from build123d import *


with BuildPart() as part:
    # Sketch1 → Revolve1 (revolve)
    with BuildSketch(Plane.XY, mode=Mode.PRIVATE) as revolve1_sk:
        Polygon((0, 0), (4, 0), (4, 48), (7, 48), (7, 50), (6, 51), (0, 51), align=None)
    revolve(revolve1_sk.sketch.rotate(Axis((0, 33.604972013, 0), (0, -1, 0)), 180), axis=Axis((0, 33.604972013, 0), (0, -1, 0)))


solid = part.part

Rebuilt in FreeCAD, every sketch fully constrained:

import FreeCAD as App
import Part
import Sketcher

doc = App.newDocument("Part")
body = doc.addObject("PartDesign::Body", "Body")

sketch1 = body.newObject("Sketcher::SketchObject", "Sketch")
sketch1.AttachmentSupport = (doc.getObject("XY_Plane"), [""])
sketch1.MapMode = "FlatFace"
sketch1.addGeometry([
    Part.LineSegment(App.Vector(0, 0, 0), App.Vector(4, 0, 0)),
    Part.LineSegment(App.Vector(4, 0, 0), App.Vector(4, 48, 0)),
    Part.LineSegment(App.Vector(4, 48, 0), App.Vector(7, 48, 0)),
    Part.LineSegment(App.Vector(7, 48, 0), App.Vector(7, 50, 0)),
    Part.LineSegment(App.Vector(7, 50, 0), App.Vector(6, 51, 0)),
    Part.LineSegment(App.Vector(6, 51, 0), App.Vector(0, 51, 0)),
    Part.LineSegment(App.Vector(0, 51, 0), App.Vector(0, 0, 0)),
], False)
sketch1.addConstraint([
    Sketcher.Constraint("Coincident", 0, 2, 1, 1),
    Sketcher.Constraint("Coincident", 1, 2, 2, 1),
    Sketcher.Constraint("Coincident", 2, 2, 3, 1),
    Sketcher.Constraint("Coincident", 3, 2, 4, 1),
    Sketcher.Constraint("Coincident", 4, 2, 5, 1),
    Sketcher.Constraint("Coincident", 5, 2, 6, 1),
    Sketcher.Constraint("Coincident", 6, 2, 0, 1),
    Sketcher.Constraint("Horizontal", 0),
    Sketcher.Constraint("Vertical", 1),
    Sketcher.Constraint("Horizontal", 2),
    Sketcher.Constraint("Vertical", 3),
    Sketcher.Constraint("Horizontal", 5),
    Sketcher.Constraint("Vertical", 6),
    Sketcher.Constraint("Coincident", 6, 2, -1, 1),
    Sketcher.Constraint("DistanceX", 0, 1, 0, 2, 4.0),
    Sketcher.Constraint("DistanceX", 2, 1, 2, 2, 3.0),
    Sketcher.Constraint("DistanceX", 5, 2, 5, 1, 6.0),
    Sketcher.Constraint("DistanceY", 1, 1, 1, 2, 48.0),
    Sketcher.Constraint("DistanceY", 3, 1, 3, 2, 2.0),
    Sketcher.Constraint("DistanceY", 6, 2, 6, 1, 51.0),
])
revolution = body.newObject("PartDesign::Revolution", "Revolution")
revolution.Profile = sketch1
revolution.ReferenceAxis = (sketch1, ["V_Axis"])
revolution.Angle = 360

doc.recompute()
